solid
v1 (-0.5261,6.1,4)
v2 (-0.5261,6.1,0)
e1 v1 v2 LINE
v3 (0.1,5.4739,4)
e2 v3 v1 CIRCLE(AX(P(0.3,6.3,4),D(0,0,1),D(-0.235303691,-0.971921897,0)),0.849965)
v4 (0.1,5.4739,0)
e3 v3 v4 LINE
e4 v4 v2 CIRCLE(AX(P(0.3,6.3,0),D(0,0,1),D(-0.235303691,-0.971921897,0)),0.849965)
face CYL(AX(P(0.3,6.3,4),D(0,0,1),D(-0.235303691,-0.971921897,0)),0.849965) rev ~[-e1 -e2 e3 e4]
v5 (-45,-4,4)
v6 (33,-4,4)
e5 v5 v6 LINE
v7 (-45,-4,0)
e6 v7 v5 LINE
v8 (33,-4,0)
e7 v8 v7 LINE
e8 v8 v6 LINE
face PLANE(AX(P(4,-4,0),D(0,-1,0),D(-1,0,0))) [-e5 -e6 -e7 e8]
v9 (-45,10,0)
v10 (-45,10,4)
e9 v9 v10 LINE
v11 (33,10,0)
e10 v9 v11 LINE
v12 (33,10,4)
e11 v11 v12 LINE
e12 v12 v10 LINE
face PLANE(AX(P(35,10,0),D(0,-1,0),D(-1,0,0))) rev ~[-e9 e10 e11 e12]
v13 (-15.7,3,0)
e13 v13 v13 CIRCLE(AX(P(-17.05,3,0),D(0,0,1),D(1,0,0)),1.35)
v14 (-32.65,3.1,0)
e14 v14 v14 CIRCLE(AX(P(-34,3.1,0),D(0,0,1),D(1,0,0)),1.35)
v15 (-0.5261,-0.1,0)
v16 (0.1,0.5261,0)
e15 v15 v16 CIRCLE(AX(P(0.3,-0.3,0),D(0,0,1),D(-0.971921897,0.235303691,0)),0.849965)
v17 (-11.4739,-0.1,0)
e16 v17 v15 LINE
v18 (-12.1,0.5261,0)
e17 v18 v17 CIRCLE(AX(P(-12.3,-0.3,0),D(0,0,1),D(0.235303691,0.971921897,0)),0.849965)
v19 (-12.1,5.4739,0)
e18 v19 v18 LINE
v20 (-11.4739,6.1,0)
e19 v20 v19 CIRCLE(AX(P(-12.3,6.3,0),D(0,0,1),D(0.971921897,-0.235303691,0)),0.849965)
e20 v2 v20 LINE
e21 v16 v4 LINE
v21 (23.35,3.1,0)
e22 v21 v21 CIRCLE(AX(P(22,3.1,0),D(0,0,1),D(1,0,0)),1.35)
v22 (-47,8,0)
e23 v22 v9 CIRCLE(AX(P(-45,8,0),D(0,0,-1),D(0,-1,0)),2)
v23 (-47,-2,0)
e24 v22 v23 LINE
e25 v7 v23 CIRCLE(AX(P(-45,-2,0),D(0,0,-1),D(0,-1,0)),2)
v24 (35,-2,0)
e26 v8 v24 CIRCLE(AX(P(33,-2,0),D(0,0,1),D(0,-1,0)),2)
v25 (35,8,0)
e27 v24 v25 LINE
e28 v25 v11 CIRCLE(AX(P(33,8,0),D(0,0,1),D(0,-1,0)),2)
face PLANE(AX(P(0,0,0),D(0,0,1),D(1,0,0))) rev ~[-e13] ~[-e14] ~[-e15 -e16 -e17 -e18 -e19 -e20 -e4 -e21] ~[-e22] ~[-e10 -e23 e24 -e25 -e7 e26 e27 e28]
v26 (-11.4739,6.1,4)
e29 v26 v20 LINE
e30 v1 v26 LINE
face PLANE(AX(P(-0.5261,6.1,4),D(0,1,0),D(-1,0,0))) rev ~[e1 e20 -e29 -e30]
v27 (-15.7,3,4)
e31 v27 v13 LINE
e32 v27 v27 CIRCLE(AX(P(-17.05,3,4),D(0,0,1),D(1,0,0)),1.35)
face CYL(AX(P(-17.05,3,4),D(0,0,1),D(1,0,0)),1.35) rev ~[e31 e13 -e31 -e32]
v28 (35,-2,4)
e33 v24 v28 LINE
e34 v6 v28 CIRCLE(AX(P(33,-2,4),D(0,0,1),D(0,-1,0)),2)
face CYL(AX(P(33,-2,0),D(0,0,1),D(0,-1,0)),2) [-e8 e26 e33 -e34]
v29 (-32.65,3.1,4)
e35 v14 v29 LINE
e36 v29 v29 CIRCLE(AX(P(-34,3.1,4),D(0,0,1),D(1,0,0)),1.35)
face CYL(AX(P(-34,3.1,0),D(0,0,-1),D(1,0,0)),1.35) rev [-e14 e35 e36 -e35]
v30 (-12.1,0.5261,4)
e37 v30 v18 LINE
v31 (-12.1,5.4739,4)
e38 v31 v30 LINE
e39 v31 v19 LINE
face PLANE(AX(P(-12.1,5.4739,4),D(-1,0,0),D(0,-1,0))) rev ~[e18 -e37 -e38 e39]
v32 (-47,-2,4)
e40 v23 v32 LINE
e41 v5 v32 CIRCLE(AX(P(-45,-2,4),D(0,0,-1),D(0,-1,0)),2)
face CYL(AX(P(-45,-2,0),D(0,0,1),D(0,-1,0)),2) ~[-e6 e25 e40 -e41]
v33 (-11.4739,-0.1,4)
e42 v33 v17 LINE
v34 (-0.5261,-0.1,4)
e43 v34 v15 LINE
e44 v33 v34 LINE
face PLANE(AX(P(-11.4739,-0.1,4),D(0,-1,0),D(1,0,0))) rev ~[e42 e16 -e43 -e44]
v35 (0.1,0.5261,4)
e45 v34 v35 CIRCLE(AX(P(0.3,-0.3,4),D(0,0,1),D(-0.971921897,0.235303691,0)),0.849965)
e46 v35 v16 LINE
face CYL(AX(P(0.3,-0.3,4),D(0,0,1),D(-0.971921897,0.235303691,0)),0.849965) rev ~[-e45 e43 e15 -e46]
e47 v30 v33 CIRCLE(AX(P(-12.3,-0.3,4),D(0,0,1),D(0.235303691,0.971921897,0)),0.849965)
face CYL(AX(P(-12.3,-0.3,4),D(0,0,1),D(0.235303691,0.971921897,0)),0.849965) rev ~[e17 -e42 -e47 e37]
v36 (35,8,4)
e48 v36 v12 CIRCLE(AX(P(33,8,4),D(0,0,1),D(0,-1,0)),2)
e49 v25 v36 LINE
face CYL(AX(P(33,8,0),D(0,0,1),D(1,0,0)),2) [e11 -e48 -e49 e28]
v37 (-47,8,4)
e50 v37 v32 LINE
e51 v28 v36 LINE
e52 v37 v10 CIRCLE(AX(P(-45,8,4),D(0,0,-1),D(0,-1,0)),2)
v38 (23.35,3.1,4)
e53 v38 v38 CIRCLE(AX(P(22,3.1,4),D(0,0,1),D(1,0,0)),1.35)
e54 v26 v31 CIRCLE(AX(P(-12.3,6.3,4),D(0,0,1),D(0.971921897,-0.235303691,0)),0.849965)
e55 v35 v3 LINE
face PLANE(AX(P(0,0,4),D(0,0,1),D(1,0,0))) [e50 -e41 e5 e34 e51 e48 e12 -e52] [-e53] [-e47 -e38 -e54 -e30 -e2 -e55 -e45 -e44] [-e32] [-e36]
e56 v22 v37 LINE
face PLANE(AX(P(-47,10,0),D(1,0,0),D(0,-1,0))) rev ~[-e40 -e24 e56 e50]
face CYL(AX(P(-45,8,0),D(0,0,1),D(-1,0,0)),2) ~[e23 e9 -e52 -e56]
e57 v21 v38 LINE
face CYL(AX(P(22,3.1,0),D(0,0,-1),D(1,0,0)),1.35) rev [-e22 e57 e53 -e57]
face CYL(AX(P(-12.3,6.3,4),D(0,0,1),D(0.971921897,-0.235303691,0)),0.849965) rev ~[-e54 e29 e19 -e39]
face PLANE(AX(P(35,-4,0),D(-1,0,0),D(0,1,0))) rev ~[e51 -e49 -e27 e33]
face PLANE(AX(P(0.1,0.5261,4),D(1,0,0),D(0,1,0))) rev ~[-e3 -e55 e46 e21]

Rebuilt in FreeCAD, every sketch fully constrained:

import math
import FreeCAD as App
import Part
import Sketcher
Q = App.Units.Quantity


def edges_at(feature, points):
    """Names of the edges that pass closest to the given points."""
    edges = feature.Shape.Edges
    near = lambda p: min(range(len(edges)), key=lambda i: edges[i].distToShape(Part.Vertex(*p))[0])
    return sorted({f"Edge{near(p) + 1}" for p in points})


def add_polygon(sketch, points):
    """Adds a closed chain of lines whose ends are joined by coincident constraints."""
    first, n = sketch.GeometryCount, len(points)
    for a, b in zip(points, points[1:] + points[:1]):
        sketch.addGeometry(Part.LineSegment(App.Vector(*a, 0), App.Vector(*b, 0)), False)
    for i in range(n):
        sketch.addConstraint(Sketcher.Constraint("Coincident", first + i, 2, first + (i + 1) % n, 1))

doc = App.newDocument("Part")
body = doc.addObject("PartDesign::Body", "Body")

sketch1 = body.newObject("Sketcher::SketchObject", "Sketch")
sketch1.AttachmentSupport = (doc.getObject("XY_Plane"), [""])
sketch1.MapMode = "FlatFace"
add_polygon(sketch1, [(35, -4), (35, 10), (-47, 10), (-47, -4)])
sketch1.addGeometry(Part.LineSegment(App.Vector(-0.8, -0.3, 0), App.Vector(-11.2, -0.3, 0)), False)
sketch1.addGeometry(Part.ArcOfCircle(Part.Circle(App.Vector(-12.3, -0.3, 0), App.Vector(0, 0, 1), 1.1), math.radians(90), math.radians(360)), False)
sketch1.addGeometry(Part.LineSegment(App.Vector(-12.3, 0.8, 0), App.Vector(-12.3, 5.2, 0)), False)
sketch1.addGeometry(Part.ArcOfCircle(Part.Circle(App.Vector(-12.3, 6.3, 0), App.Vector(0, 0, 1), 1.1), math.radians(0), math.radians(270)), False)
sketch1.addGeometry(Part.LineSegment(App.Vector(-11.2, 6.3, 0), App.Vector(-0.8, 6.3, 0)), False)
sketch1.addGeometry(Part.ArcOfCircle(Part.Circle(App.Vector(0.3, 6.3, 0), App.Vector(0, 0, 1), 1.1), math.radians(-90), math.radians(180)), False)
sketch1.addGeometry(Part.LineSegment(App.Vector(0.3, 5.2, 0), App.Vector(0.3, 0.8, 0)), False)
sketch1.addGeometry(Part.ArcOfCircle(Part.Circle(App.Vector(0.3, -0.3, 0), App.Vector(0, 0, 1), 1.1), math.radians(180), math.radians(450)), False)
sketch1.addGeometry(Part.Circle(App.Vector(22, 3.1, 0), App.Vector(0, 0, 1), 1.4), False)
sketch1.addGeometry(Part.Circle(App.Vector(-34, 3.1, 0), App.Vector(0, 0, 1), 1.4), False)
sketch1.addConstraint(Sketcher.Constraint("Coincident", 4, 2, 5, 2))
sketch1.addConstraint(Sketcher.Constraint("Coincident", 5, 1, 6, 1))
sketch1.addConstraint(Sketcher.Constraint("Coincident", 6, 2, 7, 2))
sketch1.addConstraint(Sketcher.Constraint("Coincident", 7, 1, 8, 1))
sketch1.addConstraint(Sketcher.Constraint("Coincident", 8, 2, 9, 2))
sketch1.addConstraint(Sketcher.Constraint("Coincident", 9, 1, 10, 1))
sketch1.addConstraint(Sketcher.Constraint("Coincident", 10, 2, 11, 2))
sketch1.addConstraint(Sketcher.Constraint("Coincident", 11, 1, 4, 1))
sketch1.addConstraint(Sketcher.Constraint("Vertical", 0))
sketch1.addConstraint(Sketcher.Constraint("Horizontal", 1))
sketch1.addConstraint(Sketcher.Constraint("Vertical", 2))
sketch1.addConstraint(Sketcher.Constraint("Horizontal", 3))
sketch1.addConstraint(Sketcher.Constraint("Horizontal", 4))
sketch1.addConstraint(Sketcher.Constraint("Vertical", 6))
sketch1.addConstraint(Sketcher.Constraint("Horizontal", 8))
sketch1.addConstraint(Sketcher.Constraint("Vertical", 10))
sketch1.addConstraint(Sketcher.Constraint("Equal", 5, 7))
sketch1.addConstraint(Sketcher.Constraint("Equal", 7, 9))
sketch1.addConstraint(Sketcher.Constraint("Equal", 9, 11))
sketch1.addConstraint(Sketcher.Constraint("Equal", 12, 13))
sketch1.addConstraint(Sketcher.Constraint("Horizontal", 7, 3, 9, 3))
sketch1.addConstraint(Sketcher.Constraint("Horizontal", 5, 3, 11, 3))
sketch1.addConstraint(Sketcher.Constraint("Horizontal", 12, 3, 13, 3))
sketch1.addConstraint(Sketcher.Constraint("Horizontal", 11, 3, 4, 2))
sketch1.addConstraint(Sketcher.Constraint("Horizontal", 9, 3, 7, 1))
sketch1.addConstraint(Sketcher.Constraint("Vertical", 5, 3, 7, 3))
sketch1.addConstraint(Sketcher.Constraint("Vertical", 9, 3, 11, 3))
sketch1.addConstraint(Sketcher.Constraint("Vertical", 7, 3, 5, 1))
sketch1.addConstraint(Sketcher.Constraint("Vertical", 11, 3, 9, 1))
sketch1.addConstraint(Sketcher.Constraint("Radius", 5, Q("1.05 mm")))
sketch1.addConstraint(Sketcher.Constraint("DistanceY", 2, 2, -1, 1, Q("4 mm")))
sketch1.addConstraint(Sketcher.Constraint("Diameter", 12, Q("2.7 mm")))
sketch1.addConstraint(Sketcher.Constraint("DistanceY", 5, 3, -1, 1, Q("0.3 mm")))
sketch1.addConstraint(Sketcher.Constraint("DistanceX", -1, 1, 9, 3, Q("0.3 mm")))
sketch1.addConstraint(Sketcher.Constraint("DistanceX", 1, 2, 1, 1, Q("82 mm")))
sketch1.addConstraint(Sketcher.Constraint("DistanceY", 0, 1, 0, 2, Q("14 mm")))
sketch1.addConstraint(Sketcher.Constraint("DistanceX", 4, 2, 4, 1, Q("10.5 mm")))
sketch1.addConstraint(Sketcher.Constraint("DistanceY", 6, 1, 6, 2, Q("4.5 mm")))
sketch1.addConstraint(Sketcher.Constraint("DistanceX", -1, 1, 12, 3, Q("22 mm")))
sketch1.addConstraint(Sketcher.Constraint("DistanceX", 13, 3, -1, 1, Q("34 mm")))
sketch1.addConstraint(Sketcher.Constraint("DistanceX", -1, 1, 0, 2, Q("35 mm")))
sketch1.addConstraint(Sketcher.Constraint("DistanceY", -1, 1, 12, 3, Q("3.1 mm")))
pad1 = body.newObject("PartDesign::Pad", "Pad")
pad1.Profile = sketch1
pad1.Length = 4

sketch2 = body.newObject("Sketcher::SketchObject", "Sketch001")
sketch2.AttachmentSupport = (doc.getObject("XY_Plane"), [""])
sketch2.MapMode = "FlatFace"
sketch2.AttachmentOffset = App.Placement(App.Vector(0, 0, 4), App.Rotation())
sketch2.addGeometry(Part.Circle(App.Vector(-17.1, 3, 0), App.Vector(0, 0, 1), 1.4), False)
sketch2.addConstraint(Sketcher.Constraint("Diameter", 0, Q("2.7 mm")))
sketch2.addConstraint(Sketcher.Constraint("DistanceY", -1, 1, 0, 3, Q("3 mm")))
sketch2.addConstraint(Sketcher.Constraint("DistanceX", 0, 3, -1, 1, Q("17.05 mm")))
pocket1 = body.newObject("PartDesign::Pocket", "Pocket")
pocket1.Profile = sketch2
pocket1.Type = "ThroughAll"
doc.recompute()

fillet = body.newObject("PartDesign::Fillet", "Fillet")
fillet.Base = (pocket1, edges_at(pocket1, [
    (35, 10, 2),
    (35, -4, 2),
    (-47, 10, 2),
    (-47, -4, 2),
]))
fillet.Radius = 2

sketch3 = body.newObject("Sketcher::SketchObject", "Sketch002")
sketch3.AttachmentSupport = (doc.getObject("XY_Plane"), [""])
sketch3.MapMode = "FlatFace"
sketch3.AttachmentOffset = App.Placement(App.Vector(0, 0, 4), App.Rotation())
sketch3.addGeometry(Part.LineSegment(App.Vector(0.3, 0.8, 0), App.Vector(0.3, 5.2, 0)), False)
sketch3.addGeometry(Part.ArcOfCircle(Part.Circle(App.Vector(0.3, 6.3, 0), App.Vector(0, 0, 1), 1), math.radians(-90), math.radians(180)), False)
sketch3.addGeometry(Part.LineSegment(App.Vector(-0.8, 6.3, 0), App.Vector(-11.2, 6.3, 0)), False)
sketch3.addGeometry(Part.ArcOfCircle(Part.Circle(App.Vector(-12.3, 6.3, 0), App.Vector(0, 0, 1), 1.1), math.radians(0), math.radians(270)), False)
sketch3.addGeometry(Part.LineSegment(App.Vector(-12.3, 5.2, 0), App.Vector(-12.3, 0.8, 0)), False)
sketch3.addGeometry(Part.ArcOfCircle(Part.Circle(App.Vector(-12.3, -0.3, 0), App.Vector(0, 0, 1), 1.1), math.radians(90), math.radians(360)), False)
sketch3.addGeometry(Part.LineSegment(App.Vector(-11.2, -0.3, 0), App.Vector(-0.8, -0.3, 0)), False)
sketch3.addGeometry(Part.ArcOfCircle(Part.Circle(App.Vector(0.3, -0.3, 0), App.Vector(0, 0, 1), 1.1), math.radians(180), math.radians(450)), False)
sketch3.addGeometry(Part.LineSegment(App.Vector(0.1, 5.5, 0), App.Vector(0.1, 0.5, 0)), False)
sketch3.addGeometry(Part.ArcOfCircle(Part.Circle(App.Vector(0.3, -0.3, 0), App.Vector(0, 0, 1), 0.8), math.radians(166), math.radians(464)), False)
sketch3.addGeometry(Part.LineSegment(App.Vector(-0.5, -0.1, 0), App.Vector(-11.5, -0.1, 0)), False)
sketch3.addGeometry(Part.ArcOfCircle(Part.Circle(App.Vector(-12.3, -0.3, 0), App.Vector(0, 0, 1), 0.8), math.radians(76), math.radians(374)), False)
sketch3.addGeometry(Part.LineSegment(App.Vector(-12.1, 0.5, 0), App.Vector(-12.1, 5.5, 0)), False)
sketch3.addGeometry(Part.ArcOfCircle(Part.Circle(App.Vector(-12.3, 6.3, 0), App.Vector(0, 0, 1), 0.8), math.radians(-14), math.radians(284)), False)
sketch3.addGeometry(Part.LineSegment(App.Vector(-11.5, 6.1, 0), App.Vector(-0.5, 6.1, 0)), False)
sketch3.addGeometry(Part.ArcOfCircle(Part.Circle(App.Vector(0.3, 6.3, 0), App.Vector(0, 0, 1), 0.8), math.radians(-104), math.radians(194)), False)
sketch3.addConstraint(Sketcher.Constraint("Coincident", 0, 2, 1, 1))
sketch3.addConstraint(Sketcher.Constraint("Coincident", 1, 2, 2, 1))
sketch3.addConstraint(Sketcher.Constraint("Coincident", 2, 2, 3, 1))
sketch3.addConstraint(Sketcher.Constraint("Coincident", 3, 2, 4, 1))
sketch3.addConstraint(Sketcher.Constraint("Coincident", 4, 2, 5, 1))
sketch3.addConstraint(Sketcher.Constraint("Coincident", 5, 2, 6, 1))
sketch3.addConstraint(Sketcher.Constraint("Coincident", 6, 2, 7, 1))
sketch3.addConstraint(Sketcher.Constraint("Coincident", 7, 2, 0, 1))
sketch3.addConstraint(Sketcher.Constraint("Coincident", 8, 2, 9, 2))
sketch3.addConstraint(Sketcher.Constraint("Coincident", 9, 1, 10, 1))
sketch3.addConstraint(Sketcher.Constraint("Coincident", 10, 2, 11, 2))
sketch3.addConstraint(Sketcher.Constraint("Coincident", 11, 1, 12, 1))
sketch3.addConstraint(Sketcher.Constraint("Coincident", 12, 2, 13, 2))
sketch3.addConstraint(Sketcher.Constraint("Coincident", 13, 1, 14, 1))
sketch3.addConstraint(Sketcher.Constraint("Coincident", 14, 2, 15, 2))
sketch3.addConstraint(Sketcher.Constraint("Coincident", 15, 1, 8, 1))
sketch3.addConstraint(Sketcher.Constraint("Vertical", 0))
sketch3.addConstraint(Sketcher.Constraint("Horizontal", 2))
sketch3.addConstraint(Sketcher.Constraint("Vertical", 4))
sketch3.addConstraint(Sketcher.Constraint("Horizontal", 6))
sketch3.addConstraint(Sketcher.Constraint("Vertical", 8))
sketch3.addConstraint(Sketcher.Constraint("Horizontal", 10))
sketch3.addConstraint(Sketcher.Constraint("Vertical", 12))
sketch3.addConstraint(Sketcher.Constraint("Horizontal", 14))
sketch3.addConstraint(Sketcher.Constraint("Coincident", 9, 3, 7, 3))
sketch3.addConstraint(Sketcher.Constraint("Coincident", 11, 3, 5, 3))
sketch3.addConstraint(Sketcher.Constraint("Coincident", 13, 3, 3, 3))
sketch3.addConstraint(Sketcher.Constraint("Coincident", 15, 3, 1, 3))
sketch3.addConstraint(Sketcher.Constraint("Equal", 1, 3))
sketch3.addConstraint(Sketcher.Constraint("Equal", 3, 5))
sketch3.addConstraint(Sketcher.Constraint("Equal", 5, 7))
sketch3.addConstraint(Sketcher.Constraint("Equal", 9, 11))
sketch3.addConstraint(Sketcher.Constraint("Equal", 11, 13))
sketch3.addConstraint(Sketcher.Constraint("Equal", 13, 15))
sketch3.addConstraint(Sketcher.Constraint("Horizontal", 1, 3, 3, 3))
sketch3.addConstraint(Sketcher.Constraint("Horizontal", 5, 3, 7, 3))
sketch3.addConstraint(Sketcher.Constraint("Horizontal", 15, 3, 1, 2))
sketch3.addConstraint(Sketcher.Constraint("Horizontal", 11, 3, 5, 2))
sketch3.addConstraint(Sketcher.Constraint("Horizontal", 8, 2, 11, 1))
sketch3.addConstraint(Sketcher.Constraint("Horizontal", 12, 2, 15, 1))
sketch3.addConstraint(Sketcher.Constraint("Vertical", 3, 3, 5, 3))
sketch3.addConstraint(Sketcher.Constraint("Vertical", 15, 3, 0, 2))
sketch3.addConstraint(Sketcher.Constraint("Vertical", 13, 3, 3, 2))
sketch3.addConstraint(Sketcher.Constraint("Vertical", 10, 2, 13, 1))
sketch3.addConstraint(Sketcher.Constraint("DistanceX", 8, 2, 7, 2, Q("0.2 mm")))
sketch3.addConstraint(Sketcher.Constraint("DistanceY", 6, 2, 9, 1, Q("0.2 mm")))
sketch3.addConstraint(Sketcher.Constraint("Radius", 1, Q("1.05 mm")))
sketch3.addConstraint(Sketcher.Constraint("Radius", 9, Q("0.85 mm")))
sketch3.addConstraint(Sketcher.Constraint("DistanceX", 2, 2, 2, 1, Q("10.5 mm")))
sketch3.addConstraint(Sketcher.Constraint("DistanceY", 0, 1, 0, 2, Q("4.5 mm")))
sketch3.addConstraint(Sketcher.Constraint("DistanceX", -1, 1, 1, 3, Q("0.3 mm")))
sketch3.addConstraint(Sketcher.Constraint("DistanceY", -1, 1, 1, 3, Q("6.3 mm")))
pad2 = body.newObject("PartDesign::Pad", "Pad001")
pad2.Profile = sketch3
pad2.Length = 4
pad2.Reversed = True

doc.recompute()
